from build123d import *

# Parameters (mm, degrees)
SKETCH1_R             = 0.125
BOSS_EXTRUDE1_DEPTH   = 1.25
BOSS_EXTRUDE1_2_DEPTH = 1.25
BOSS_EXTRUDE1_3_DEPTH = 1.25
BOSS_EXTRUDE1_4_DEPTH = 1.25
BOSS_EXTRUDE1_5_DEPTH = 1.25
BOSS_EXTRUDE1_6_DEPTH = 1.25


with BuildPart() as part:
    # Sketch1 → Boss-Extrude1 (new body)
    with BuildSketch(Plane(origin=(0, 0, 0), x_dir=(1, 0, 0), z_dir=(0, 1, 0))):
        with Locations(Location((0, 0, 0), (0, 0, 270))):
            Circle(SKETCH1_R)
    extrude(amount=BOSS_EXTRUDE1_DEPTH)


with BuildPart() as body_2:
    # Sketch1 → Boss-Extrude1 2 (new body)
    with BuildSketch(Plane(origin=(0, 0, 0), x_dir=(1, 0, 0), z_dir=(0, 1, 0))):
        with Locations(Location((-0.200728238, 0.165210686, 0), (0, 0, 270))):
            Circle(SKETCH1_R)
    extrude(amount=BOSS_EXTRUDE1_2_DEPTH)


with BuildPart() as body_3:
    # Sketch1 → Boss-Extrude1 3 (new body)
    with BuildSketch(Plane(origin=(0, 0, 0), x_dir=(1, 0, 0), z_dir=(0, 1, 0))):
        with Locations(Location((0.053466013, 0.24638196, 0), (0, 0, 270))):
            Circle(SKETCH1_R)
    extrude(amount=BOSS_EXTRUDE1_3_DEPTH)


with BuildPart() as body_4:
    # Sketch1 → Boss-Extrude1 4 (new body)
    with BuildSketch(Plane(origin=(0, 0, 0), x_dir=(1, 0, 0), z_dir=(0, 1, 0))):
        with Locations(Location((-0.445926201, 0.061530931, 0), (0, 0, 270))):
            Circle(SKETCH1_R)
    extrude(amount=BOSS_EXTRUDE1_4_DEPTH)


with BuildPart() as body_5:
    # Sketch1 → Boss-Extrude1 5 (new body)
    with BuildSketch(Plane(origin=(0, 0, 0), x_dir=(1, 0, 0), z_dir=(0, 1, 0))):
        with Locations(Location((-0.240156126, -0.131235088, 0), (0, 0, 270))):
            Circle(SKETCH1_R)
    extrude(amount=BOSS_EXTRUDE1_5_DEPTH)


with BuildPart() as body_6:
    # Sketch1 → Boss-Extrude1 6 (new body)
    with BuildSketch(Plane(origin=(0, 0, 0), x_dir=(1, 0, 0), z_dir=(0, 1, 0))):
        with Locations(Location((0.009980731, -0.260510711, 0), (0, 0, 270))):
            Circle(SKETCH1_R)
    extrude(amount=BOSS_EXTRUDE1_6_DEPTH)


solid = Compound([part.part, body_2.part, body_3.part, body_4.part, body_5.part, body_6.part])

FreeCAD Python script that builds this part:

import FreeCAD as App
import Part
import Sketcher

doc = App.newDocument("Part")
body = doc.addObject("PartDesign::Body", "Body")

sketch1 = body.newObject("Sketcher::SketchObject", "Sketch")
sketch1.AttachmentSupport = (doc.getObject("XZ_Plane"), [""])
sketch1.MapMode = "FlatFace"
sketch1.addGeometry(Part.Circle(App.Vector(0, 0, 0), App.Vector(0, 0, 1), 0.12), False)
sketch1.addConstraint(Sketcher.Constraint("Coincident", 0, 3, -1, 1))
sketch1.addConstraint(Sketcher.Constraint("Diameter", 0, 0.25))
pad1 = body.newObject("PartDesign::Pad", "Pad")
pad1.Profile = sketch1
pad1.Length = 1.25
pad1.Reversed = True
body2 = doc.addObject("PartDesign::Body", "Body001")

sketch2 = body2.newObject("Sketcher::SketchObject", "Sketch001")
sketch2.AttachmentSupport = (doc.getObject("XZ_Plane001"), [""])
sketch2.MapMode = "FlatFace"
sketch2.addGeometry(Part.Circle(App.Vector(-0.2, -0.17, 0), App.Vector(0, 0, 1), 0.12), False)
sketch2.addConstraint(Sketcher.Constraint("Diameter", 0, 0.25))
sketch2.addConstraint(Sketcher.Constraint("DistanceX", 0, 3, -1, 1, 0.200728))
sketch2.addConstraint(Sketcher.Constraint("DistanceY", 0, 3, -1, 1, 0.165211))
pad2 = body2.newObject("PartDesign::Pad", "Pad001")
pad2.Profile = sketch2
pad2.Length = 1.25
pad2.Reversed = True
body3 = doc.addObject("PartDesign::Body", "Body002")

sketch3 = body3.newObject("Sketcher::SketchObject", "Sketch002")
sketch3.AttachmentSupport = (doc.getObject("XZ_Plane002"), [""])
sketch3.MapMode = "FlatFace"
sketch3.addGeometry(Part.Circle(App.Vector(0.05, -0.25, 0), App.Vector(0, 0, 1), 0.12), False)
sketch3.addConstraint(Sketcher.Constraint("Diameter", 0, 0.25))
sketch3.addConstraint(Sketcher.Constraint("DistanceY", 0, 3, -1, 1, 0.246382))
sketch3.addConstraint(Sketcher.Constraint("DistanceX", -1, 1, 0, 3, 0.053466))
pad3 = body3.newObject("PartDesign::Pad", "Pad002")
pad3.Profile = sketch3
pad3.Length = 1.25
pad3.Reversed = True
body4 = doc.addObject("PartDesign::Body", "Body003")

sketch4 = body4.newObject("Sketcher::SketchObject", "Sketch003")
sketch4.AttachmentSupport = (doc.getObject("XZ_Plane003"), [""])
sketch4.MapMode = "FlatFace"
sketch4.addGeometry(Part.Circle(App.Vector(-0.45, -0.06, 0), App.Vector(0, 0, 1), 0.12), False)
sketch4.addConstraint(Sketcher.Constraint("Diameter", 0, 0.25))
sketch4.addConstraint(Sketcher.Constraint("DistanceY", 0, 3, -1, 1, 0.061531))
sketch4.addConstraint(Sketcher.Constraint("DistanceX", 0, 3, -1, 1, 0.445926))
pad4 = body4.newObject("PartDesign::Pad", "Pad003")
pad4.Profile = sketch4
pad4.Length = 1.25
pad4.Reversed = True
body5 = doc.addObject("PartDesign::Body", "Body004")

sketch5 = body5.newObject("Sketcher::SketchObject", "Sketch004")
sketch5.AttachmentSupport = (doc.getObject("XZ_Plane004"), [""])
sketch5.MapMode = "FlatFace"
sketch5.addGeometry(Part.Circle(App.Vector(-0.24, 0.13, 0), App.Vector(0, 0, 1), 0.12), False)
sketch5.addConstraint(Sketcher.Constraint("Diameter", 0, 0.25))
sketch5.addConstraint(Sketcher.Constraint("DistanceX", 0, 3, -1, 1, 0.240156))
sketch5.addConstraint(Sketcher.Constraint("DistanceY", -1, 1, 0, 3, 0.131235))
pad5 = body5.newObject("PartDesign::Pad", "Pad004")
pad5.Profile = sketch5
pad5.Length = 1.25
pad5.Reversed = True
body6 = doc.addObject("PartDesign::Body", "Body005")

sketch6 = body6.newObject("Sketcher::SketchObject", "Sketch005")
sketch6.AttachmentSupport = (doc.getObject("XZ_Plane005"), [""])
sketch6.MapMode = "FlatFace"
sketch6.addGeometry(Part.Circle(App.Vector(0.01, 0.26, 0), App.Vector(0, 0, 1), 0.12), False)
sketch6.addConstraint(Sketcher.Constraint("Diameter", 0, 0.25))
sketch6.addConstraint(Sketcher.Constraint("DistanceX", -1, 1, 0, 3, 0.009981))
sketch6.addConstraint(Sketcher.Constraint("DistanceY", -1, 1, 0, 3, 0.260511))
pad6 = body6.newObject("PartDesign::Pad", "Pad005")
pad6.Profile = sketch6
pad6.Length = 1.25
pad6.Reversed = True

doc.recompute()
